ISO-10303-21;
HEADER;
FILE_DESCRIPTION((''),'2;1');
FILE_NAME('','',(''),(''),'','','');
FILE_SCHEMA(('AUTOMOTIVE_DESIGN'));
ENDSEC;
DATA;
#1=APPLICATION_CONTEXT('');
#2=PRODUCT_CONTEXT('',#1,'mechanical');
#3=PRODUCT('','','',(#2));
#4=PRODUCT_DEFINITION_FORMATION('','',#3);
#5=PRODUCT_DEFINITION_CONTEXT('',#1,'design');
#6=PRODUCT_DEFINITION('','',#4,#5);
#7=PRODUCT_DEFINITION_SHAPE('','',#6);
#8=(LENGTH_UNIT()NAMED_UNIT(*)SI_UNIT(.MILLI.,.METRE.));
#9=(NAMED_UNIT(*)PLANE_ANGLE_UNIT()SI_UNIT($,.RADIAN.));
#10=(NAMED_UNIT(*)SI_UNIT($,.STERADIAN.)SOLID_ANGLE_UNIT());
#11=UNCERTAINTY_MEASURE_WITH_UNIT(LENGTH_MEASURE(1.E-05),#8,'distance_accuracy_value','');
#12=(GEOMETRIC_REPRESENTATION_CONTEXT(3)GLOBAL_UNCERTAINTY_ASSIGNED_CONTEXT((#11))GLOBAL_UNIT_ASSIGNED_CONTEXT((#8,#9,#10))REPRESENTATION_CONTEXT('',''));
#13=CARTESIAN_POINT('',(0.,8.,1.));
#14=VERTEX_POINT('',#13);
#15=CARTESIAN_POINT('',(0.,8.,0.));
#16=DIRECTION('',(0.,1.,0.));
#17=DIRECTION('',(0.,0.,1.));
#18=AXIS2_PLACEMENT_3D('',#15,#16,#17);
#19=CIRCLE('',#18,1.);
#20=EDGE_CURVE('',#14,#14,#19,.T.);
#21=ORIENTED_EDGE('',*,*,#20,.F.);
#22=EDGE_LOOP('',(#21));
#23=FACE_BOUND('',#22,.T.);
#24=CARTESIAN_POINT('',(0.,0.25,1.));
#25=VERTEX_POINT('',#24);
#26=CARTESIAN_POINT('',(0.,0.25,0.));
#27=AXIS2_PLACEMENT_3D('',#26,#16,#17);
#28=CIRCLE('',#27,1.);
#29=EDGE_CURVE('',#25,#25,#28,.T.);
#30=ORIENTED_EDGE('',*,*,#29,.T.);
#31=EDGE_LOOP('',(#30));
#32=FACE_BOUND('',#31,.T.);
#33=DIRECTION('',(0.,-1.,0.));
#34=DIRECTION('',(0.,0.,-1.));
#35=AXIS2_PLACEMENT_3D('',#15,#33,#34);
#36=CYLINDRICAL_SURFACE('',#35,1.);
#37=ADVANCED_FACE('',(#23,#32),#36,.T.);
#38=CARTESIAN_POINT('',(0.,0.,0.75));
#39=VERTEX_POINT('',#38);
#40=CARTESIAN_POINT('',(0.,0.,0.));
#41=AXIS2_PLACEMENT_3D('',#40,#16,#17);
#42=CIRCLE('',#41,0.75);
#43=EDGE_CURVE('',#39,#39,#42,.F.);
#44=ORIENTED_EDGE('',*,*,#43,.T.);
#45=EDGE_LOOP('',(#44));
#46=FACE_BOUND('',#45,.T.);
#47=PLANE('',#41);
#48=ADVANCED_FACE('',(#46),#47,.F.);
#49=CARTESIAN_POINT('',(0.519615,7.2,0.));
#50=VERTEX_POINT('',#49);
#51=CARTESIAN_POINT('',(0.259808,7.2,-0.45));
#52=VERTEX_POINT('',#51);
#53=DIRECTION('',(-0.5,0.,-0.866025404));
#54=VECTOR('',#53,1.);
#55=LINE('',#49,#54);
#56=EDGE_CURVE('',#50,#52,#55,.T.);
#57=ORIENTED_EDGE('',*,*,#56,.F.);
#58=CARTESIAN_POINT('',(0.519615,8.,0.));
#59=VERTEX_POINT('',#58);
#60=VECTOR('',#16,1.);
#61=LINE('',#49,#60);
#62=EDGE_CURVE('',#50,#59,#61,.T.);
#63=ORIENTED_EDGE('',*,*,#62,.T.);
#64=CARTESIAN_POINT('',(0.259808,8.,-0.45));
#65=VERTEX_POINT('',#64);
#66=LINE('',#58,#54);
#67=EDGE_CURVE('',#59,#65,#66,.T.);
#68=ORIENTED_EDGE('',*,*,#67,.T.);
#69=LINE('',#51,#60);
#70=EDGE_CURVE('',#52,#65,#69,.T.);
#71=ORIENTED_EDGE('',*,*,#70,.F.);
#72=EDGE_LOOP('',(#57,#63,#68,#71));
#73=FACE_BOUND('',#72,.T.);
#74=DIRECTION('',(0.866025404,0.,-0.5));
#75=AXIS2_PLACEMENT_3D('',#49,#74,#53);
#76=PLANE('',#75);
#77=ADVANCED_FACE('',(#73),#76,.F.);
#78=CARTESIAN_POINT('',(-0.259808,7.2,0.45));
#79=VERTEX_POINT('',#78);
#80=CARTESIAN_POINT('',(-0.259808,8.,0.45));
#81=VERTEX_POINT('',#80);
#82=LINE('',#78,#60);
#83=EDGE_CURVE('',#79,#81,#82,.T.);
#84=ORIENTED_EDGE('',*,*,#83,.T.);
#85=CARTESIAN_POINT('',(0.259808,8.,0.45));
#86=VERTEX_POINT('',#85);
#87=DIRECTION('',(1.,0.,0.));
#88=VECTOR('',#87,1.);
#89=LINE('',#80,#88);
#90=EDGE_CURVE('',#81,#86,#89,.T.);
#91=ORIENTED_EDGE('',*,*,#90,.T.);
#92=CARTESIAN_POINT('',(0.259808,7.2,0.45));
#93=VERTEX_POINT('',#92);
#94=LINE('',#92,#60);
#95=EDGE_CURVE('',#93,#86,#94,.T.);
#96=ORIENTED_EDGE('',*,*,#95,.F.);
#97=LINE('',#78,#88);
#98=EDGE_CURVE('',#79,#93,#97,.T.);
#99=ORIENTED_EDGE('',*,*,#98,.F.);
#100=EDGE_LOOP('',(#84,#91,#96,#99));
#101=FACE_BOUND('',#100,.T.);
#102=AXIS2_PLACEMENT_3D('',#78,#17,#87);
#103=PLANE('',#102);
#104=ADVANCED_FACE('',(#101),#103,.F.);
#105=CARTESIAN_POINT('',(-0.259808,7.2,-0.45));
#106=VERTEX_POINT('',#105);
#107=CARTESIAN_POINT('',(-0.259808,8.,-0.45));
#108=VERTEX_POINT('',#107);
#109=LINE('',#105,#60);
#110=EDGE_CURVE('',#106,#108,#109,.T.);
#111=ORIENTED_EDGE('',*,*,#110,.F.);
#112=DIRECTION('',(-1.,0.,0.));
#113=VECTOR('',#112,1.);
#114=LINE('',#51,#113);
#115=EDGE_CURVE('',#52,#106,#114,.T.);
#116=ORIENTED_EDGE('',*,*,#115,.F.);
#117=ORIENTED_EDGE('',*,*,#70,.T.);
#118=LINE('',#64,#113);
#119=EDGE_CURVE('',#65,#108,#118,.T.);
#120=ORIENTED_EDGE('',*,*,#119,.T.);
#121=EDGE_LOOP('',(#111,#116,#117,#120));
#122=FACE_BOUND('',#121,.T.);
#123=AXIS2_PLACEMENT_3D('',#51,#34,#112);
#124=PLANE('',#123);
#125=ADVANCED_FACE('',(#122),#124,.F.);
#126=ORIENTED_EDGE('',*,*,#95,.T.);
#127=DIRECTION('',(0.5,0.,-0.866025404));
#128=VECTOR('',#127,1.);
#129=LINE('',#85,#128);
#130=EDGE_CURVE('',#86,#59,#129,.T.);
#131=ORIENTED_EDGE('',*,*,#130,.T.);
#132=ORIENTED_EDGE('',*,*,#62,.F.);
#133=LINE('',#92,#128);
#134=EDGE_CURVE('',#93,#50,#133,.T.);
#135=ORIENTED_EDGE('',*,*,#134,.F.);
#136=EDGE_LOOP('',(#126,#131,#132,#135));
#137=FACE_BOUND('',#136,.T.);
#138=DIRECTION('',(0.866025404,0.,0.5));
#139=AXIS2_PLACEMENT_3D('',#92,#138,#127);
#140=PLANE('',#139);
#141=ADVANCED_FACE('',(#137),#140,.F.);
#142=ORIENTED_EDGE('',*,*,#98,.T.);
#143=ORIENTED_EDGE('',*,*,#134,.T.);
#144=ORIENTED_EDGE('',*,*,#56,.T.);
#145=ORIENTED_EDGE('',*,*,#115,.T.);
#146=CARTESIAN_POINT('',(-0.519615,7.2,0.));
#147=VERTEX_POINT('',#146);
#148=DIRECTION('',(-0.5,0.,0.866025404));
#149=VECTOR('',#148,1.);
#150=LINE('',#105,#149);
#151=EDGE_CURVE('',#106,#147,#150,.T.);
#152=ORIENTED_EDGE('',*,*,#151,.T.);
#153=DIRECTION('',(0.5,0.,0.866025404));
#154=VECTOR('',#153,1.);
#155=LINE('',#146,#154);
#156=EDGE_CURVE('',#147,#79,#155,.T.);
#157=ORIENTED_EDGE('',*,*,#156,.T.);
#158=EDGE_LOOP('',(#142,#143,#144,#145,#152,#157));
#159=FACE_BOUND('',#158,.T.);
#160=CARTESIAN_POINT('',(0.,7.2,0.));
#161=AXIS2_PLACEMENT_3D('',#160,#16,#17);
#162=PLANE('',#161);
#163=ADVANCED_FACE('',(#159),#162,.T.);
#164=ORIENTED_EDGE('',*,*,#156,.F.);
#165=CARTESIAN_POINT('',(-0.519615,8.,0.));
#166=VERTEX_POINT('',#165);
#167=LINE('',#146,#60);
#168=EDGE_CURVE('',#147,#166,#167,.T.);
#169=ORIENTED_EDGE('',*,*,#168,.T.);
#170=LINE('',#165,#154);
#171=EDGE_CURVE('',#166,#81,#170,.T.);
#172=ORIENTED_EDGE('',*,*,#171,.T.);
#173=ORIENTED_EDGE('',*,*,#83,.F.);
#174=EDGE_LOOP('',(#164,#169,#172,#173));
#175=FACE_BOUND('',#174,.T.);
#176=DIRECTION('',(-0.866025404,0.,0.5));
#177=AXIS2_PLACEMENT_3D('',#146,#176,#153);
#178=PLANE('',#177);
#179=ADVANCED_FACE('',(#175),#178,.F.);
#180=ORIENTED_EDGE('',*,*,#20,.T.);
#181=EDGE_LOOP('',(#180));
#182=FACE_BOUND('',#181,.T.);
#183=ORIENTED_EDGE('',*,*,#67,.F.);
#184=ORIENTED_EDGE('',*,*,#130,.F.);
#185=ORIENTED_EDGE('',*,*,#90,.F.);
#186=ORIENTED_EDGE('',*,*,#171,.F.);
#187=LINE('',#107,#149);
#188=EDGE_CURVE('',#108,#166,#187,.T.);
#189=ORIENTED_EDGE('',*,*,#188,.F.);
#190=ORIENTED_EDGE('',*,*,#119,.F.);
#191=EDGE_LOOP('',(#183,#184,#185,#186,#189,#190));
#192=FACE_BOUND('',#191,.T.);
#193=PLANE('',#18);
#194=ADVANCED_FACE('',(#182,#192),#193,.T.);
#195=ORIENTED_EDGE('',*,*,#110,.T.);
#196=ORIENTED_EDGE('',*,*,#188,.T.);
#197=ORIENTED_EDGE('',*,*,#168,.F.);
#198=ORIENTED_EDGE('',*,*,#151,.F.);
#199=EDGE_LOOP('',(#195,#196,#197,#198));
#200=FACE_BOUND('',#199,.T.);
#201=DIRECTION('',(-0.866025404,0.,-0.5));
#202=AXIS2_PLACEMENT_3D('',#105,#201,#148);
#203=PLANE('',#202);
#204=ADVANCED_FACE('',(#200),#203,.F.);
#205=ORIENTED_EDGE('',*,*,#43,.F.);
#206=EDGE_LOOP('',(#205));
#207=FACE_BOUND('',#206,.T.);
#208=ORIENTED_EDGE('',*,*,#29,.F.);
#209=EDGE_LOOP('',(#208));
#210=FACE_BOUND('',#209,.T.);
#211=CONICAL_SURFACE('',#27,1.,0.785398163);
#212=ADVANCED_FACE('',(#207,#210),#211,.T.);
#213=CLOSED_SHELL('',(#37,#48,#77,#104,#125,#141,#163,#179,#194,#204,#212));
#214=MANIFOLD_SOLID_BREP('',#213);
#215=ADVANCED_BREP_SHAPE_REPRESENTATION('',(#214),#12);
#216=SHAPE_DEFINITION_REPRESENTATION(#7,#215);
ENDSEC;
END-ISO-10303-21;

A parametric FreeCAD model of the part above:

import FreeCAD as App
import Part
import Sketcher

V = App.Vector
Q = App.Units.Quantity


def edges_at(feature, points):
    """Names of the edges that pass closest to the given points."""
    edges = feature.Shape.Edges
    near = lambda p: min(range(len(edges)), key=lambda i: edges[i].distToShape(Part.Vertex(*p))[0])
    return sorted({f"Edge{near(p) + 1}" for p in points})


def add_polygon(sketch, points):
    """Adds a closed chain of lines whose ends are joined by coincident constraints."""
    first, n = sketch.GeometryCount, len(points)
    for a, b in zip(points, points[1:] + points[:1]):
        sketch.addGeometry(Part.LineSegment(App.Vector(*a, 0), App.Vector(*b, 0)), False)
    for i in range(n):
        sketch.addConstraint(Sketcher.Constraint("Coincident", first + i, 2, first + (i + 1) % n, 1))

doc = App.newDocument("Part")
body = doc.addObject("PartDesign::Body", "Body")

sketch1 = body.newObject("Sketcher::SketchObject", "Sketch")
sketch1.AttachmentSupport = (doc.getObject("XZ_Plane"), [""])
sketch1.MapMode = "FlatFace"
sketch1.addGeometry(Part.Circle(V(0, 0, 0), V(0, 0, 1), 1), False)
sketch1.addConstraint(Sketcher.Constraint("Coincident", 0, 3, -1, 1))
sketch1.addConstraint(Sketcher.Constraint("Diameter", 0, Q("2 mm")))
pad1 = body.newObject("PartDesign::Pad", "Pad")
pad1.Profile = sketch1
pad1.Length = 8
pad1.Reversed = True
doc.recompute()

chamfer = body.newObject("PartDesign::Chamfer", "Chamfer")
chamfer.Base = (pad1, edges_at(pad1, [(-1, 0, 0)]))
chamfer.Size = 0.25

sketch2 = body.newObject("Sketcher::SketchObject", "Sketch001")
sketch2.AttachmentSupport = (doc.getObject("XZ_Plane"), [""])
sketch2.MapMode = "FlatFace"
sketch2.AttachmentOffset = App.Placement(V(0, 0, -8), App.Rotation())
add_polygon(sketch2, [(0.3, 0.5), (0.5, 0), (0.3, -0.5), (-0.3, -0.5), (-0.5, 0), (-0.3, 0.5)])
sketch2.addConstraint(Sketcher.Constraint("Horizontal", 2))
sketch2.addConstraint(Sketcher.Constraint("Horizontal", 5))
sketch2.addConstraint(Sketcher.Constraint("Symmetric", 0, 2, 3, 2, -1, 1))
sketch2.addConstraint(Sketcher.Constraint("Symmetric", 1, 2, 4, 2, -1, 1))
sketch2.addConstraint(Sketcher.Constraint("PointOnObject", 0, 2, -1))
sketch2.addConstraint(Sketcher.Constraint("Parallel", 0, 3))
sketch2.addConstraint(Sketcher.Constraint("Vertical", 2, 2, 4, 2))
sketch2.addConstraint(Sketcher.Constraint("Angle", 0, Q("-60 deg")))
sketch2.addConstraint(Sketcher.Constraint("DistanceY", 2, 2, 4, 2, Q("0.9 mm")))
sketch2.addConstraint(Sketcher.Constraint("DistanceX", 2, 2, 2, 1, Q("0.519615 mm")))
pocket1 = body.newObject("PartDesign::Pocket", "Pocket")
pocket1.Profile = sketch2
pocket1.Length = 0.8
pocket1.Reversed = True

doc.recompute()
